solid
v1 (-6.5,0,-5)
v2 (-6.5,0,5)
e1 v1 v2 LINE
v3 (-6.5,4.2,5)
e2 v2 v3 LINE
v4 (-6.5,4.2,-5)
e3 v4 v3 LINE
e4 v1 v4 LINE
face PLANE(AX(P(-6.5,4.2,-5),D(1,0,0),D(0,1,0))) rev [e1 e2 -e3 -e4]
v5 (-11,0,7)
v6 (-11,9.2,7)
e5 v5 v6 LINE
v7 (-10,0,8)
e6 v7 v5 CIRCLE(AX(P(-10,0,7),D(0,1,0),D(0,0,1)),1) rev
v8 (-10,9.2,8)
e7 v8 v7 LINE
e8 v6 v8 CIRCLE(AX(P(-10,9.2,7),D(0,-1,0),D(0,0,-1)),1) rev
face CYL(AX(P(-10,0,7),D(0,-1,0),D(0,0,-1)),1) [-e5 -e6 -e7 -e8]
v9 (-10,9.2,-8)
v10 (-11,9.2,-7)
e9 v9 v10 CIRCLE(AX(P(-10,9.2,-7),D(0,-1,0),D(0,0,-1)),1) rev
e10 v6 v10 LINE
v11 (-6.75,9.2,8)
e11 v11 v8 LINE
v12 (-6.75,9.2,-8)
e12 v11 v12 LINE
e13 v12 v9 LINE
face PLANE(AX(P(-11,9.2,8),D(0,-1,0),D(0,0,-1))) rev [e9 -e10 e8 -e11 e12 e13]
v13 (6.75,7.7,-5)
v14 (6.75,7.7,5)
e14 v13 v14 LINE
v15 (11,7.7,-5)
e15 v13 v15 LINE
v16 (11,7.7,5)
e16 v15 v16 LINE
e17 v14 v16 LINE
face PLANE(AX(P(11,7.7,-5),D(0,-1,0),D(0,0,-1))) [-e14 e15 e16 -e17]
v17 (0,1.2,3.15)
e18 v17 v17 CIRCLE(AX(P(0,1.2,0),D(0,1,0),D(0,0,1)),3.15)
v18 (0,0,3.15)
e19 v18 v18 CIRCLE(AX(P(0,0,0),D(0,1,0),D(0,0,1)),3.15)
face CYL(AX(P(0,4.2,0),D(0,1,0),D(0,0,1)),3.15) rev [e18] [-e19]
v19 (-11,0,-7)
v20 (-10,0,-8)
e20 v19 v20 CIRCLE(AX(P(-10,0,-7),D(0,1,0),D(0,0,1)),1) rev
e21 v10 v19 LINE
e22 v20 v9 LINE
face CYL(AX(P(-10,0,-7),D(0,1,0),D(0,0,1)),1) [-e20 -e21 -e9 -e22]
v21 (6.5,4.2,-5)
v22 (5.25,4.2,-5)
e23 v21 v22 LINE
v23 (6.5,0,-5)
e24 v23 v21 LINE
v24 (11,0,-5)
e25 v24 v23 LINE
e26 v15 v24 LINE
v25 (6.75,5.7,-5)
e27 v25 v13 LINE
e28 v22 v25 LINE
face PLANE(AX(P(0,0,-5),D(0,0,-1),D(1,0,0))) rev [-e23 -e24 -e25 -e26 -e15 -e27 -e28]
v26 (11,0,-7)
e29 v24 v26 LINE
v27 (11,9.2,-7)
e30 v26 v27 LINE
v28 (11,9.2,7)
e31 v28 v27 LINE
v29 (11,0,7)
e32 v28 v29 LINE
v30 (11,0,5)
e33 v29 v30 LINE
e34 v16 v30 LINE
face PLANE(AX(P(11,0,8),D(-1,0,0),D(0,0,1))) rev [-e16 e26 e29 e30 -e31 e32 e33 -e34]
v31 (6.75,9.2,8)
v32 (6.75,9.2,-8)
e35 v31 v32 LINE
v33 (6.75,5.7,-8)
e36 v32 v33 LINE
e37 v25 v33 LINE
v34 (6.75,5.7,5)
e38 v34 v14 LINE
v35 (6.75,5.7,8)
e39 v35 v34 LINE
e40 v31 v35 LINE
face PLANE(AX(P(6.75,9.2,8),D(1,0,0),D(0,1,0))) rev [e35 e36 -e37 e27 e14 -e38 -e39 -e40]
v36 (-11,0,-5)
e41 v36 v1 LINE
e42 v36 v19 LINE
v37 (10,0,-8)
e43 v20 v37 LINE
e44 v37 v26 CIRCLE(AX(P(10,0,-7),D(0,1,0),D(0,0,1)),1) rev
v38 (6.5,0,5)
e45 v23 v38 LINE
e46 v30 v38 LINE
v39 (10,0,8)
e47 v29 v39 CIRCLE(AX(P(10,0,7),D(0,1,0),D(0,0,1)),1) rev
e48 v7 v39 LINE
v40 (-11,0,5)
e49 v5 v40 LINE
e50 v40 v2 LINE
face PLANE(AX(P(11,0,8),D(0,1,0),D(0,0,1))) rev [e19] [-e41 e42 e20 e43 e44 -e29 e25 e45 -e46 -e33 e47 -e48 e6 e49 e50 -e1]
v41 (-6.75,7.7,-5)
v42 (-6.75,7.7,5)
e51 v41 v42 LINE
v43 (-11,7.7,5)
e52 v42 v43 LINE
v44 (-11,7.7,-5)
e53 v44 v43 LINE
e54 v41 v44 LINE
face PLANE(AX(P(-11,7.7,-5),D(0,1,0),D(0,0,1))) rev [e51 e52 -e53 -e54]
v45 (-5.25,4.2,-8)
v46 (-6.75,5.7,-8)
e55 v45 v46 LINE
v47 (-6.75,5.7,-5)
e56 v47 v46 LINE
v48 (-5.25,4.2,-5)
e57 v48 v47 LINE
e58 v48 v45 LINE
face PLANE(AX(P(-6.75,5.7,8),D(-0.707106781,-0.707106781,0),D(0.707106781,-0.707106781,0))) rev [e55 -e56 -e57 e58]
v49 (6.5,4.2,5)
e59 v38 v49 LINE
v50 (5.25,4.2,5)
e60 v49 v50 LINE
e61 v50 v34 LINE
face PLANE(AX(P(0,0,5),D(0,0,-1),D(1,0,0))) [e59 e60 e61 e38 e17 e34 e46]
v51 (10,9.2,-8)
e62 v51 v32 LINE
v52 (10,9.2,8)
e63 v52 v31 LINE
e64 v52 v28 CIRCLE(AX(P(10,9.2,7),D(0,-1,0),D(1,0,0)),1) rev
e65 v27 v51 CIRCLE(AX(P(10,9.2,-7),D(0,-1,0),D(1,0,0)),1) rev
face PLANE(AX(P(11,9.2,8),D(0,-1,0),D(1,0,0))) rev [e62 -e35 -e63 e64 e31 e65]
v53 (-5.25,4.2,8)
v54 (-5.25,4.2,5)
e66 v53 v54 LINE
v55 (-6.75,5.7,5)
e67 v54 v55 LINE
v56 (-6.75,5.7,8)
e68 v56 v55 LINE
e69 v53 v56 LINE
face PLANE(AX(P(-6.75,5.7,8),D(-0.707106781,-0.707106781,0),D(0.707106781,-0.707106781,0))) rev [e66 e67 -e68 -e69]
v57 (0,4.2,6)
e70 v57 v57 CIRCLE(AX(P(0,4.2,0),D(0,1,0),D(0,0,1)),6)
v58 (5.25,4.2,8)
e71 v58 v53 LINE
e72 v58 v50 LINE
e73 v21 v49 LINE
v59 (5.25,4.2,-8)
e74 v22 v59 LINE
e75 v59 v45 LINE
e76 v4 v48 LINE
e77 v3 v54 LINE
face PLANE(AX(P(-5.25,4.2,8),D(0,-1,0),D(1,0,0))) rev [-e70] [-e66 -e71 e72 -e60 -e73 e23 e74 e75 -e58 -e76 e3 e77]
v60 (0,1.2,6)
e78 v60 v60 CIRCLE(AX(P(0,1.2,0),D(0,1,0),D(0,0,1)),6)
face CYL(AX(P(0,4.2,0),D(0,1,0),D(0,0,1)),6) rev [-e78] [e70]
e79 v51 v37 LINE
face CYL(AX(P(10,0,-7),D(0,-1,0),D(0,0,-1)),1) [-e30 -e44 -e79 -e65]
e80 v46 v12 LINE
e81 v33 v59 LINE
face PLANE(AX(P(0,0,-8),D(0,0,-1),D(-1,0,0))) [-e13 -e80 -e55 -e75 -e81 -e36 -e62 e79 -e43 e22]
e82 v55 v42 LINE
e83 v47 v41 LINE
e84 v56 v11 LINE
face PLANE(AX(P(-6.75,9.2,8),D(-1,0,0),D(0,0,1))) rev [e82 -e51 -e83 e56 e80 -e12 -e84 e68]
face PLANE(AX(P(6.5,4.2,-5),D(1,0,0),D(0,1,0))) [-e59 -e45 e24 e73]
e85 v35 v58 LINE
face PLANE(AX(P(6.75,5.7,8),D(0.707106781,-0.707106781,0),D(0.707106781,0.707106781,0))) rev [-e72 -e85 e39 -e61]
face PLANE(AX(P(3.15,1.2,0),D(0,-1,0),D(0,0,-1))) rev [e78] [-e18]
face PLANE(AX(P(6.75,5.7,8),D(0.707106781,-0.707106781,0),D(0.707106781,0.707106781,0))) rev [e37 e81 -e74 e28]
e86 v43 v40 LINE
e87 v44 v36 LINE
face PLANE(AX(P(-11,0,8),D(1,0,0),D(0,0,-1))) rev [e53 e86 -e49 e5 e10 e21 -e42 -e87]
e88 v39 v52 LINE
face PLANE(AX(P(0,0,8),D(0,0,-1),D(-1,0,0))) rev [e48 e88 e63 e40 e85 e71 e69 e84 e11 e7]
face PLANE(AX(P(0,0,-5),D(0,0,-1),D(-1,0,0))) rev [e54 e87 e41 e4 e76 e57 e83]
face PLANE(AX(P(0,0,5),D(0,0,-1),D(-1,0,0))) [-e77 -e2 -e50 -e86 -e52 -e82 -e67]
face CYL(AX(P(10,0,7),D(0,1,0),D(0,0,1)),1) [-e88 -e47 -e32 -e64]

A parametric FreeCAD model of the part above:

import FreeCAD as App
import Part
import Sketcher
Q = App.Units.Quantity


def edges_at(feature, points):
    """Names of the edges that pass closest to the given points."""
    edges = feature.Shape.Edges
    near = lambda p: min(range(len(edges)), key=lambda i: edges[i].distToShape(Part.Vertex(*p))[0])
    return sorted({f"Edge{near(p) + 1}" for p in points})

doc = App.newDocument("Part")
body = doc.addObject("PartDesign::Body", "Body")

sketch1 = body.newObject("Sketcher::SketchObject", "Sketch")
sketch1.AttachmentSupport = (doc.getObject("XY_Plane"), [""])
sketch1.MapMode = "FlatFace"
sketch1.addGeometry([
    Part.LineSegment(App.Vector(-11, 0, 0), App.Vector(11, 0, 0)),
    Part.LineSegment(App.Vector(11, 0, 0), App.Vector(11, 9.2, 0)),
    Part.LineSegment(App.Vector(11, 9.2, 0), App.Vector(6.75, 9.2, 0)),
    Part.LineSegment(App.Vector(6.75, 9.2, 0), App.Vector(6.75, 5.7, 0)),
    Part.LineSegment(App.Vector(6.75, 5.7, 0), App.Vector(5.25, 4.2, 0)),
    Part.LineSegment(App.Vector(5.25, 4.2, 0), App.Vector(-5.25, 4.2, 0)),
    Part.LineSegment(App.Vector(-5.25, 4.2, 0), App.Vector(-6.75, 5.7, 0)),
    Part.LineSegment(App.Vector(-6.75, 5.7, 0), App.Vector(-6.75, 9.2, 0)),
    Part.LineSegment(App.Vector(-6.75, 9.2, 0), App.Vector(-11, 9.2, 0)),
    Part.LineSegment(App.Vector(-11, 9.2, 0), App.Vector(-11, 0, 0)),
], False)
sketch1.addConstraint([
    Sketcher.Constraint("Coincident", 0, 2, 1, 1),
    Sketcher.Constraint("Coincident", 1, 2, 2, 1),
    Sketcher.Constraint("Coincident", 2, 2, 3, 1),
    Sketcher.Constraint("Coincident", 3, 2, 4, 1),
    Sketcher.Constraint("Coincident", 4, 2, 5, 1),
    Sketcher.Constraint("Coincident", 5, 2, 6, 1),
    Sketcher.Constraint("Coincident", 6, 2, 7, 1),
    Sketcher.Constraint("Coincident", 7, 2, 8, 1),
    Sketcher.Constraint("Coincident", 8, 2, 9, 1),
    Sketcher.Constraint("Coincident", 9, 2, 0, 1),
    Sketcher.Constraint("Horizontal", 0),
    Sketcher.Constraint("Vertical", 1),
    Sketcher.Constraint("Horizontal", 2),
    Sketcher.Constraint("Vertical", 3),
    Sketcher.Constraint("Horizontal", 5),
    Sketcher.Constraint("Vertical", 7),
    Sketcher.Constraint("Horizontal", 8),
    Sketcher.Constraint("Vertical", 9),
    Sketcher.Constraint("Symmetric", 0, 2, 9, 2, -1, 1),
    Sketcher.Constraint("Symmetric", 3, 2, 6, 2, -2),
    Sketcher.Constraint("Perpendicular", 4, 6),
    Sketcher.Constraint("Horizontal", 2, 2, 7, 2),
    Sketcher.Constraint("Equal", 4, 6),
    Sketcher.Constraint("DistanceX", 0, 1, 0, 2, 22.0),
    Sketcher.Constraint("DistanceX", 5, 2, 5, 1, 10.5),
    Sketcher.Constraint("DistanceY", 1, 1, 1, 2, 9.2),
    Sketcher.Constraint("DistanceY", 3, 2, 3, 1, 3.5),
    Sketcher.Constraint("DistanceY", 4, 2, 2, 2, 5.0),
])
pad1 = body.newObject("PartDesign::Pad", "Pad")
pad1.Profile = sketch1
pad1.Length = 16
pad1.Midplane = True

sketch2 = body.newObject("Sketcher::SketchObject", "Sketch001")
sketch2.AttachmentSupport = (doc.getObject("XY_Plane"), [""])
sketch2.MapMode = "FlatFace"
sketch2.addGeometry([
    Part.LineSegment(App.Vector(-6.75, 7.7, 0), App.Vector(-11, 7.7, 0)),
    Part.LineSegment(App.Vector(-11, 7.7, 0), App.Vector(-11, 0, 0)),
    Part.LineSegment(App.Vector(-11, 0, 0), App.Vector(-6.5, 0, 0)),
    Part.LineSegment(App.Vector(-6.5, 0, 0), App.Vector(-6.5, 4.2, 0)),
    Part.LineSegment(App.Vector(-6.5, 4.2, 0), App.Vector(-5.25, 4.2, 0)),
    Part.LineSegment(App.Vector(-5.25, 4.2, 0), App.Vector(-6.75, 5.7, 0)),
    Part.LineSegment(App.Vector(-6.75, 5.7, 0), App.Vector(-6.75, 7.7, 0)),
], False)
sketch2.addConstraint([
    Sketcher.Constraint("Coincident", 0, 2, 1, 1),
    Sketcher.Constraint("Coincident", 1, 2, 2, 1),
    Sketcher.Constraint("Coincident", 2, 2, 3, 1),
    Sketcher.Constraint("Coincident", 3, 2, 4, 1),
    Sketcher.Constraint("Coincident", 4, 2, 5, 1),
    Sketcher.Constraint("Coincident", 5, 2, 6, 1),
    Sketcher.Constraint("Coincident", 6, 2, 0, 1),
    Sketcher.Constraint("Horizontal", 0),
    Sketcher.Constraint("Vertical", 1),
    Sketcher.Constraint("Horizontal", 2),
    Sketcher.Constraint("Vertical", 3),
    Sketcher.Constraint("Horizontal", 4),
    Sketcher.Constraint("Vertical", 6),
    Sketcher.Constraint("PointOnObject", 1, 2, -1),
    Sketcher.Constraint("DistanceY", 6, 1, 6, 2, 2.0),
    Sketcher.Constraint("Angle", 5, Q("135 deg")),
    Sketcher.Constraint("DistanceX", 2, 1, 2, 2, 4.5),
    Sketcher.Constraint("DistanceY", 1, 2, 1, 1, 7.7),
    Sketcher.Constraint("DistanceY", 3, 1, 3, 2, 4.2),
    Sketcher.Constraint("DistanceX", 0, 2, -1, 1, 11.0),
    Sketcher.Constraint("DistanceX", 0, 2, 0, 1, 4.25),
])
pocket1 = body.newObject("PartDesign::Pocket", "Pocket")
pocket1.Profile = sketch2
pocket1.Length = 10
pocket1.Midplane = True
doc.recompute()

mirrored = body.newObject("PartDesign::Mirrored", "Mirrored")
mirrored.Originals = [pocket1]
mirrored.MirrorPlane = (doc.getObject("YZ_Plane"), [""])
body.Tip = mirrored

sketch3 = body.newObject("Sketcher::SketchObject", "Sketch002")
sketch3.AttachmentSupport = (doc.getObject("XZ_Plane"), [""])
sketch3.MapMode = "FlatFace"
sketch3.AttachmentOffset = App.Placement(App.Vector(0, 0, -4.2), App.Rotation())
sketch3.addGeometry(Part.Circle(App.Vector(0, 0, 0), App.Vector(0, 0, 1), 3.15), False)
sketch3.addConstraint([
    Sketcher.Constraint("Coincident", 0, 3, -1, 1),
    Sketcher.Constraint("Diameter", 0, 6.3),
])
doc.recompute()
hole = body.newObject("PartDesign::Hole", "Hole")
hole.Profile = sketch3
hole.ThreadType = "None"
hole.Diameter = 6.3
hole.DepthType = "Dimension"
hole.Depth = 4.2
hole.DrillPoint = "Flat"
hole.HoleCutType = "Counterbore"
hole.HoleCutDiameter = 12
hole.HoleCutDepth = 3
hole.Reversed = True
doc.recompute()

fillet = body.newObject("PartDesign::Fillet", "Fillet")
fillet.Base = (hole, edges_at(hole, [
    (11, 4.6, 8),
    (11, 4.6, -8),
    (-11, 4.6, -8),
    (-11, 4.6, 8),
]))
fillet.Radius = 1

doc.recompute()
